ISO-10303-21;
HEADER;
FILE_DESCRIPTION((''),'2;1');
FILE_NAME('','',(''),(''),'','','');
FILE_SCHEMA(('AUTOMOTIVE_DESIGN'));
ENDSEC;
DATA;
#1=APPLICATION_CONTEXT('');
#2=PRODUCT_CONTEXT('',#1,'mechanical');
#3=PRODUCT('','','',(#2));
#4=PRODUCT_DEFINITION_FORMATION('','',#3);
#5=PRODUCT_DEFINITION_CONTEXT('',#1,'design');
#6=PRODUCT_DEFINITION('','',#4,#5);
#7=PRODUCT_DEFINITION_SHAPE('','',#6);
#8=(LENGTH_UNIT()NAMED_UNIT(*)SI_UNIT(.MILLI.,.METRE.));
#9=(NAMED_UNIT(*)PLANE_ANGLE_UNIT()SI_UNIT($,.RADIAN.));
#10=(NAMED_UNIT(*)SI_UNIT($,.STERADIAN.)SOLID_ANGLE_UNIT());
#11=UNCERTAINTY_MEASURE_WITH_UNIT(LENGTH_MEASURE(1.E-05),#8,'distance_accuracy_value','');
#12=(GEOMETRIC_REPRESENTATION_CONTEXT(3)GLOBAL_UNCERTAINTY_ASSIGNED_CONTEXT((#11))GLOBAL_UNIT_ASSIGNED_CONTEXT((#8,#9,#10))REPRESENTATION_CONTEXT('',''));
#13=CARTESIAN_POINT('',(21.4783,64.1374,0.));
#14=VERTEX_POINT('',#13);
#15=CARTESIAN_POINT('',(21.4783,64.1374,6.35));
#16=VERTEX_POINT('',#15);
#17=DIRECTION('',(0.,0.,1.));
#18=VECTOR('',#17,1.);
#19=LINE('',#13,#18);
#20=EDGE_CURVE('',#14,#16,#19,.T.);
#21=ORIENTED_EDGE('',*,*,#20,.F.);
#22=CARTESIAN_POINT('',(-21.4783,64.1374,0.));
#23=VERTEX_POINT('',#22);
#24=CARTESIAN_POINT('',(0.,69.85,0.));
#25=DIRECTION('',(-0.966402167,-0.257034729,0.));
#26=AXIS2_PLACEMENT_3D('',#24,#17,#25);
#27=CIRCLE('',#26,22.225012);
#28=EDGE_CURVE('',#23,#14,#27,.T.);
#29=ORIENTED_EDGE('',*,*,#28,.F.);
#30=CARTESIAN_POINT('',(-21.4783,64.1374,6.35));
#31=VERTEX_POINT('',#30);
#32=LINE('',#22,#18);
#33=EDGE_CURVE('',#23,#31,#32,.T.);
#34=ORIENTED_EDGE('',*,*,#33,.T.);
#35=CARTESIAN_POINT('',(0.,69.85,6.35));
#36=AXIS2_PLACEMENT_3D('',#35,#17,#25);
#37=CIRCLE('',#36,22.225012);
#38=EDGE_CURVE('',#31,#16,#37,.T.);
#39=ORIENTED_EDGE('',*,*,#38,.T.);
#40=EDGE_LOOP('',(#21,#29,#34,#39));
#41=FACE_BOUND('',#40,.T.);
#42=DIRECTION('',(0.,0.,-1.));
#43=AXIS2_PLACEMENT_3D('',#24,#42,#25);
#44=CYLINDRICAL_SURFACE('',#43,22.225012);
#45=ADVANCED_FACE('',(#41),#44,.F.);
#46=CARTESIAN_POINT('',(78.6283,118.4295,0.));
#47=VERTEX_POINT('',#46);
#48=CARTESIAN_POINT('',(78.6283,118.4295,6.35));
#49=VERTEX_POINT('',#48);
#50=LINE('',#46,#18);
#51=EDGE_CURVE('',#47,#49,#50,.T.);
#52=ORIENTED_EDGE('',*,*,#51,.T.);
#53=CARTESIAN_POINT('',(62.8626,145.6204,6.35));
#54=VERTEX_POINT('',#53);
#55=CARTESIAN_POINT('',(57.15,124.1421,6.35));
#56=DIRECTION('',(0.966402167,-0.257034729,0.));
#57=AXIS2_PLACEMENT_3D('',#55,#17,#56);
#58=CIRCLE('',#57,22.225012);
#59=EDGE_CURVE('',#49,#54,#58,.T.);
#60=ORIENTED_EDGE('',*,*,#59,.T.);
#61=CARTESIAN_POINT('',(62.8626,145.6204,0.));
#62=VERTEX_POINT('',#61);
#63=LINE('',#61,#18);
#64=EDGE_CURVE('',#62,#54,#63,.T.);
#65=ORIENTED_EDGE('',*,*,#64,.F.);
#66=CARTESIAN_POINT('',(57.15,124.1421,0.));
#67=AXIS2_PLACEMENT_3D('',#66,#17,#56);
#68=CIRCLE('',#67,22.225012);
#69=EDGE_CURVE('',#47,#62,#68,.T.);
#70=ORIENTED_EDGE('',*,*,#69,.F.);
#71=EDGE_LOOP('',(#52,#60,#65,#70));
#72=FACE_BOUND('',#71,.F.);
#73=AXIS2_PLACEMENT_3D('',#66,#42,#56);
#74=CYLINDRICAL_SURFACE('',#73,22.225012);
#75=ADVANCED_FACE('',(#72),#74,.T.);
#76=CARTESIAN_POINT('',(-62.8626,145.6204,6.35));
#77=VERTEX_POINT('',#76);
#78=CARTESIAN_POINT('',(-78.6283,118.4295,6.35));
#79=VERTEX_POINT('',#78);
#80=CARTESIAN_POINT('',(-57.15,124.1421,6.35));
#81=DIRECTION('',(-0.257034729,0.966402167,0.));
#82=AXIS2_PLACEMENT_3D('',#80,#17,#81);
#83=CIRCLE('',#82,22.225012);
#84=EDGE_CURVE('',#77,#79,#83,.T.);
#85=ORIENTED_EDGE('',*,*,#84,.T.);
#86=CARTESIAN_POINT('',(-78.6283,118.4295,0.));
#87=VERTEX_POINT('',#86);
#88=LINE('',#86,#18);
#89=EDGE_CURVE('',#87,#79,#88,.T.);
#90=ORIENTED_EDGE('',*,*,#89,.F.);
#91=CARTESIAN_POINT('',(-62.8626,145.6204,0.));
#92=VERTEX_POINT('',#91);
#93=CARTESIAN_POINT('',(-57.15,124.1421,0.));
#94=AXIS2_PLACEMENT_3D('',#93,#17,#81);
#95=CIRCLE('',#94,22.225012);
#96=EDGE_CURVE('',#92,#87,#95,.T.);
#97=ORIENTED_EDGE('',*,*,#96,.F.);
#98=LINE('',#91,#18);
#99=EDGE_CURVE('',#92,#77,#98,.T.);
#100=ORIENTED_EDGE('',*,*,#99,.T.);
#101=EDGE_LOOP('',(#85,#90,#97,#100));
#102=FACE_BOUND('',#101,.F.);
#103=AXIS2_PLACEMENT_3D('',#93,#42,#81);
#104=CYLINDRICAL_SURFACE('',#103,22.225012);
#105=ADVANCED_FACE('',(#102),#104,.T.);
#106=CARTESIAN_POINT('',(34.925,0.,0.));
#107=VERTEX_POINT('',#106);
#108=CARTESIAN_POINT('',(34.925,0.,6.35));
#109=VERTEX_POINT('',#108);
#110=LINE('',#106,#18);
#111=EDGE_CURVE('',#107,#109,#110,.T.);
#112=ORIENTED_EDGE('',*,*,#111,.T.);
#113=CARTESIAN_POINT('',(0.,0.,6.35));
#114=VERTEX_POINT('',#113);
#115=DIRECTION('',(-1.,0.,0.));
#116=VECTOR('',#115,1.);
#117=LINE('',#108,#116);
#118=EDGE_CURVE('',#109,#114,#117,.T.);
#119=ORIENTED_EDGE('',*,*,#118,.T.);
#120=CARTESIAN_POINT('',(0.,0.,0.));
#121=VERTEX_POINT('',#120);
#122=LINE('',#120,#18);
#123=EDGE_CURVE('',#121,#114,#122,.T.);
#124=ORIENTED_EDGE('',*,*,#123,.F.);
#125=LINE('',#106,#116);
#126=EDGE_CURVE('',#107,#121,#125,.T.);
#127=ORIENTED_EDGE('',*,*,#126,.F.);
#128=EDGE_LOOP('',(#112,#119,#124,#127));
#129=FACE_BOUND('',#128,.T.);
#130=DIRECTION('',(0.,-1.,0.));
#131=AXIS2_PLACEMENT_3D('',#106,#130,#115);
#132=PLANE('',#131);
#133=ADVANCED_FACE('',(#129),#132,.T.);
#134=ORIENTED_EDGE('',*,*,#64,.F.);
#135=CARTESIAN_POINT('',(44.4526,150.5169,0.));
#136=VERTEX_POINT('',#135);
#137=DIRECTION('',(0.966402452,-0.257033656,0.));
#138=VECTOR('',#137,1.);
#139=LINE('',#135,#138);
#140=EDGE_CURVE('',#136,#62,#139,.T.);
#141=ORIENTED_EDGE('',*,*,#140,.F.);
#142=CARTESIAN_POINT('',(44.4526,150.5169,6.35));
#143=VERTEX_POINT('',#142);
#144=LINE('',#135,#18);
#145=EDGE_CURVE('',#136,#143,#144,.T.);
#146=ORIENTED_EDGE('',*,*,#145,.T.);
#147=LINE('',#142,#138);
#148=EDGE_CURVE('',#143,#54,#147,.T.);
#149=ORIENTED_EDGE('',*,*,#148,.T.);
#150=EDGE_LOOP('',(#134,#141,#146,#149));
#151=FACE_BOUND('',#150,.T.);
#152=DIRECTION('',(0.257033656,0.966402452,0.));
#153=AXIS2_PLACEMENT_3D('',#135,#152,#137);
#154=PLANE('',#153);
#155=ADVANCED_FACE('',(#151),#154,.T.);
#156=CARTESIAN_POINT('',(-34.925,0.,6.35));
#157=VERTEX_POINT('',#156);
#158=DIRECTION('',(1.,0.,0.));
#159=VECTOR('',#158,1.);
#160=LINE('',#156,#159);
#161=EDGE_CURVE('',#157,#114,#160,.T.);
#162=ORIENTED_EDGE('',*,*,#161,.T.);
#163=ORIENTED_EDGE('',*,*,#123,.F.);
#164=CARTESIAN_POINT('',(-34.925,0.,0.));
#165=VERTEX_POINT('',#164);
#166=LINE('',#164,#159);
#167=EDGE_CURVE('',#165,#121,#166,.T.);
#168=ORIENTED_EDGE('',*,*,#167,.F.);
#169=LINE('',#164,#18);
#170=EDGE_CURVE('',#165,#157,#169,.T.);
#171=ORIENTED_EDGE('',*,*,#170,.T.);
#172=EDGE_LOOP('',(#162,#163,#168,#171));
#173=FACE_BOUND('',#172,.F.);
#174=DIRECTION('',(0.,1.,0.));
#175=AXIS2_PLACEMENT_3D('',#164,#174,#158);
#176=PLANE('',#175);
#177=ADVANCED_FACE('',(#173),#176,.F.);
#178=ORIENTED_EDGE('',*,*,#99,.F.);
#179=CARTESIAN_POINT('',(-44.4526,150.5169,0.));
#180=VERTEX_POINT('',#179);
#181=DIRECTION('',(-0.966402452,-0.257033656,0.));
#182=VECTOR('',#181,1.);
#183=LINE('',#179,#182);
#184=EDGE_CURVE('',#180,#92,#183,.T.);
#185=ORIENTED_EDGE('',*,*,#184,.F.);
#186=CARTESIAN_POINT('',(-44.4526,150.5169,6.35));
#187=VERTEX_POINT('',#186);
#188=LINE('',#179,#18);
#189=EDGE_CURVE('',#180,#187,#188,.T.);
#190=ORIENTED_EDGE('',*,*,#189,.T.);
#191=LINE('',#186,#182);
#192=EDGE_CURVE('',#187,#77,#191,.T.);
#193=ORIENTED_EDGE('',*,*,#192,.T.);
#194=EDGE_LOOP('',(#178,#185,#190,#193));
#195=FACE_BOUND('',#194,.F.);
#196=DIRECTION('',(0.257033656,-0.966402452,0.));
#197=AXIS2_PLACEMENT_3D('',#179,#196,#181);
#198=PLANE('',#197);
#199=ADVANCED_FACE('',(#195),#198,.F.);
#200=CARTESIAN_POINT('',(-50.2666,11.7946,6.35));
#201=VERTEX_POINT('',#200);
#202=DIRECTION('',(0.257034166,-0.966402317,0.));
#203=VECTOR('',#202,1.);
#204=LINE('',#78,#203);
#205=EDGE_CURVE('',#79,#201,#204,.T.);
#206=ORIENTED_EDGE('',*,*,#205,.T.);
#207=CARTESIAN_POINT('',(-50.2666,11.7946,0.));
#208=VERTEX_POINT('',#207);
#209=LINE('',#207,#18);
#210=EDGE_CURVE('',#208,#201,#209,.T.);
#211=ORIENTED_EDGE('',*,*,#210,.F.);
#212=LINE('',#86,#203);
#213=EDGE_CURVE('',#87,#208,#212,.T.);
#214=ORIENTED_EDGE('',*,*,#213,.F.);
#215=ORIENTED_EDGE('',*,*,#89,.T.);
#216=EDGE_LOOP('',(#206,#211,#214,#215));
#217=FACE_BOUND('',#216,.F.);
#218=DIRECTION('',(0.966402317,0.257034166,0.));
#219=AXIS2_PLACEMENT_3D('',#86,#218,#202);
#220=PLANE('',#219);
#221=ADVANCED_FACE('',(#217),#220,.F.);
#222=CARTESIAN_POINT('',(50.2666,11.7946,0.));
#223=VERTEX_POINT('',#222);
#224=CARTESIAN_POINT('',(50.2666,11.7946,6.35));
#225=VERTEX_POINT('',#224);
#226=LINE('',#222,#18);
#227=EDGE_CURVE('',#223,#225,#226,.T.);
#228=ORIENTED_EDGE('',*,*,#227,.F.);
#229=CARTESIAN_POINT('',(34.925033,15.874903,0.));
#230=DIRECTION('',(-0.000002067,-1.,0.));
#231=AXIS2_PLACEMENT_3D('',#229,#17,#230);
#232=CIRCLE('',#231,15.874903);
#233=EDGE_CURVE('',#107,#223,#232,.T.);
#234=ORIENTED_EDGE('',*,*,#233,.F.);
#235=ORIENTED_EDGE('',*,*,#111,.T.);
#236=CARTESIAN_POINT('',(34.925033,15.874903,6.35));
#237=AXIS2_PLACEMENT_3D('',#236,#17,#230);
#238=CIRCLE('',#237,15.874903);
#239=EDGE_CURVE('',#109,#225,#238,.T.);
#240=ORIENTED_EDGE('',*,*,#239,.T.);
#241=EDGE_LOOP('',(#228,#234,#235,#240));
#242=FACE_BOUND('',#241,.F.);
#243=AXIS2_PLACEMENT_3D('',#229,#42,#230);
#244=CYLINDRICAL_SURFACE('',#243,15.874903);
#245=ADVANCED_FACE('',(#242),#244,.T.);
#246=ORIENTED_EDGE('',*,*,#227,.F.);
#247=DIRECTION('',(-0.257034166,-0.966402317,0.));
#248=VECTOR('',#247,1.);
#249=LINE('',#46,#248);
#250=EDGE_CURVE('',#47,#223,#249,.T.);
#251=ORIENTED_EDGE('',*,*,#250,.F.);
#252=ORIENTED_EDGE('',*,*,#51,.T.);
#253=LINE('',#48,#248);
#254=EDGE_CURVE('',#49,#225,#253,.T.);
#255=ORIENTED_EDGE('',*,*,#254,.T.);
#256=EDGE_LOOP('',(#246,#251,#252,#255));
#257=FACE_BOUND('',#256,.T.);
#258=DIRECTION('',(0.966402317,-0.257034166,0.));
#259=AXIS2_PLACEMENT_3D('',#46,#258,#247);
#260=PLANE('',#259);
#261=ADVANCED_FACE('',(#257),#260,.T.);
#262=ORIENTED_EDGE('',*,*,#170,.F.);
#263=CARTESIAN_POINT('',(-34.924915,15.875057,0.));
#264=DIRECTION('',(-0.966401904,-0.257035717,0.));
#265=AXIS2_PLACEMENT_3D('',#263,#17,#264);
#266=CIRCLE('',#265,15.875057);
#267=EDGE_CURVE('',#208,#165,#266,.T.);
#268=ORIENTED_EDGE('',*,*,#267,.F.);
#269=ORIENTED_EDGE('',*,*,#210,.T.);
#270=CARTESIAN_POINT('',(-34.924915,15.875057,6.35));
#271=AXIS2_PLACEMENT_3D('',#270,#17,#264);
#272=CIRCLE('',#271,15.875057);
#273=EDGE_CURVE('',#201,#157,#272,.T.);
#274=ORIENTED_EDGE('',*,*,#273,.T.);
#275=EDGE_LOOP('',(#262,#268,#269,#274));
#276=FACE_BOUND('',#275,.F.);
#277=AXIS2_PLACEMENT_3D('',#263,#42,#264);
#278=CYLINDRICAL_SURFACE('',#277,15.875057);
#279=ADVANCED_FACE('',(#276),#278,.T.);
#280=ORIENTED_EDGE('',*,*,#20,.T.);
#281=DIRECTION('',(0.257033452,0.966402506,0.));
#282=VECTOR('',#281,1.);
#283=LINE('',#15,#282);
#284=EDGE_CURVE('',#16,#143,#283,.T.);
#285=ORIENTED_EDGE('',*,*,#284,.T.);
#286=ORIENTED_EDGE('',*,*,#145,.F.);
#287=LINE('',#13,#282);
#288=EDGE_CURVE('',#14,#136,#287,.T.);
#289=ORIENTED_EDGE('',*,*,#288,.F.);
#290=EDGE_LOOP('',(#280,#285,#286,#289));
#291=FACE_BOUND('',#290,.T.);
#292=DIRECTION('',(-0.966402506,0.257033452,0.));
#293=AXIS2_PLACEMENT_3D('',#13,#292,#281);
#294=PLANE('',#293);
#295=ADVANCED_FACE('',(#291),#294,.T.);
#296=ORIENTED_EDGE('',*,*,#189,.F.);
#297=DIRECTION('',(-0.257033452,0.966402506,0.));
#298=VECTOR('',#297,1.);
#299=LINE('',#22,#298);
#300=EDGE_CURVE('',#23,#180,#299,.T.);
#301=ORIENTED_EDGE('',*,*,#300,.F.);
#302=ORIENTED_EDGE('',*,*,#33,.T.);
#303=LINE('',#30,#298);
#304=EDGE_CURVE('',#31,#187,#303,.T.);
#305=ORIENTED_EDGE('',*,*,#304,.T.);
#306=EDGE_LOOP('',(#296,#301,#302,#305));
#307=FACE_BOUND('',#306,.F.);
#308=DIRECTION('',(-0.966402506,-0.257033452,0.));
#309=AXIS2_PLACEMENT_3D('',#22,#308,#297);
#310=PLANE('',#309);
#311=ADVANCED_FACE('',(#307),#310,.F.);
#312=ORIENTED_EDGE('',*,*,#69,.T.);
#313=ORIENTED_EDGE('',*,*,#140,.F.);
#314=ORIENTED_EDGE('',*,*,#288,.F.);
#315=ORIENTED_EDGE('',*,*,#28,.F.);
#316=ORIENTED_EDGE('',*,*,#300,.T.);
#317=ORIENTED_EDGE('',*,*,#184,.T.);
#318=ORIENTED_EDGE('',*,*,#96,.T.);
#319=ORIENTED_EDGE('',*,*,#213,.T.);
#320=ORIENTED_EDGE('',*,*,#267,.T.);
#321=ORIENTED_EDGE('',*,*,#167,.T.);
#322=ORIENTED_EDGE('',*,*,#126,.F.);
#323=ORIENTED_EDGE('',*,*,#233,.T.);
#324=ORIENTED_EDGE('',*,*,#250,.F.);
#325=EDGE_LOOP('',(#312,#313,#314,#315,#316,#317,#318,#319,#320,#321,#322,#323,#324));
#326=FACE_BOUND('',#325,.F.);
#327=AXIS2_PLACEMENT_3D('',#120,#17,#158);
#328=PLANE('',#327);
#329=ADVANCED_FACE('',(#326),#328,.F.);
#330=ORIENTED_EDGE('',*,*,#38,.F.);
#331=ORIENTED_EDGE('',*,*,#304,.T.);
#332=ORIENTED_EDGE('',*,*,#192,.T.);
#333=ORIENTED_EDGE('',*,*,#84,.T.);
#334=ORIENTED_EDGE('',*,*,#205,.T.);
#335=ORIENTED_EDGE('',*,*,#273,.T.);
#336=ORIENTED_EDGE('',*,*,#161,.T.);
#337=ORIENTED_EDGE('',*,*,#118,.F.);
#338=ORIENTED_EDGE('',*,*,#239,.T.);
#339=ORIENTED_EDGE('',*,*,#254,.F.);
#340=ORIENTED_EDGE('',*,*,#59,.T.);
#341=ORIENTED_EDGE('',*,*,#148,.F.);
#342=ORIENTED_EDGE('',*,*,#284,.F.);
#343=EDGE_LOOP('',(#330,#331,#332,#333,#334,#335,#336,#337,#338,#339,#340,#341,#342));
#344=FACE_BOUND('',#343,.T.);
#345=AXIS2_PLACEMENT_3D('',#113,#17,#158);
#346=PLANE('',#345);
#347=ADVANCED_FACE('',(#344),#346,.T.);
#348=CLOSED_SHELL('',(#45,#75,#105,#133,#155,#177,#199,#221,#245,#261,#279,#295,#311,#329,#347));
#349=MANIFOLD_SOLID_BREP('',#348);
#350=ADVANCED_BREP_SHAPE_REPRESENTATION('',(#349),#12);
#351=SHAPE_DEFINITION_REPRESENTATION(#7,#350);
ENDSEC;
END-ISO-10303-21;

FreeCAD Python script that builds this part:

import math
import FreeCAD as App
import Part
import Sketcher
from FreeCAD import Vector
Q = App.Units.Quantity

doc = App.newDocument("Part")
body = doc.addObject("PartDesign::Body", "Body")

# Sketch on XY plane
sketch1 = doc.addObject("Sketcher::SketchObject", "Sketch")
body.addObject(sketch1)
sketch1.AttachmentSupport = (doc.XY_Plane, [""])
sketch1.MapMode = "FlatFace"
sketch1.addGeometry([
    Part.ArcOfCircle(Part.Circle(Vector(0, 70, 0), Vector(0, 0, 1), 22), math.radians(-165), math.radians(-15)),  # 0
    Part.LineSegment(Vector(-21, 64, 0), Vector(-44, 151, 0)),  # 1
    Part.LineSegment(Vector(-44, 151, 0), Vector(-63, 146, 0)),  # 2
    Part.ArcOfCircle(Part.Circle(Vector(-57, 124, 0), Vector(0, 0, 1), 22), math.radians(105), math.radians(195)),  # 3
    Part.LineSegment(Vector(-79, 118, 0), Vector(-50, 12, 0)),  # 4
    Part.ArcOfCircle(Part.Circle(Vector(-35, 16, 0), Vector(0, 0, 1), 16), math.radians(-165), math.radians(-90)),  # 5
    Part.LineSegment(Vector(-35, 0, 0), Vector(35, 0, 0)),  # 6
    Part.ArcOfCircle(Part.Circle(Vector(35, 16, 0), Vector(0, 0, 1), 16), math.radians(-90), math.radians(-15)),  # 7
    Part.LineSegment(Vector(50, 12, 0), Vector(79, 118, 0)),  # 8
    Part.ArcOfCircle(Part.Circle(Vector(57, 124, 0), Vector(0, 0, 1), 22), math.radians(-15), math.radians(75)),  # 9
    Part.LineSegment(Vector(63, 146, 0), Vector(44, 151, 0)),  # 10
    Part.LineSegment(Vector(44, 151, 0), Vector(21, 64, 0)),  # 11
], False)
sketch1.addConstraint([
    Sketcher.Constraint("Tangent", 0, 1, 1, 1),
    Sketcher.Constraint("Coincident", 1, 2, 2, 1),
    Sketcher.Constraint("Tangent", 2, 2, 3, 1),
    Sketcher.Constraint("Tangent", 3, 2, 4, 1),
    Sketcher.Constraint("Tangent", 4, 2, 5, 1),
    Sketcher.Constraint("Tangent", 5, 2, 6, 1),
    Sketcher.Constraint("Tangent", 6, 2, 7, 1),
    Sketcher.Constraint("Tangent", 7, 2, 8, 1),
    Sketcher.Constraint("Tangent", 8, 2, 9, 1),
    Sketcher.Constraint("Tangent", 9, 2, 10, 1),
    Sketcher.Constraint("Coincident", 10, 2, 11, 1),
    Sketcher.Constraint("Tangent", 11, 2, 0, 2),
    Sketcher.Constraint("Horizontal", 6),
    Sketcher.Constraint("Equal", 0, 3),
    Sketcher.Constraint("Equal", 5, 7),
    Sketcher.Constraint("Equal", 3, 9),
    Sketcher.Constraint("Symmetric", 5, 2, 6, 2, -1, 1),
    Sketcher.Constraint("Symmetric", 3, 3, 9, 3, -2),
    Sketcher.Constraint("Symmetric", 1, 2, 10, 2, -2),
    Sketcher.Constraint("PointOnObject", 0, 3, -2),
    Sketcher.Constraint("Perpendicular", 1, 2),
    Sketcher.Constraint("Perpendicular", 2, 4),
    Sketcher.Constraint("Radius", 0, Q("0.875 in")),
    Sketcher.Constraint("Radius", 5, Q("0.625 in")),
    Sketcher.Constraint("DistanceX", 6, 1, 6, 2, Q("2.75 in")),
    Sketcher.Constraint("DistanceY", -1, 1, 0, 3, Q("2.75 in")),
    Sketcher.Constraint("DistanceX", 3, 3, -1, 1, Q("2.25 in")),
    Sketcher.Constraint("Distance", 2, Q("0.75 in")),
])
pad1 = doc.addObject("PartDesign::Pad", "Pad")
body.addObject(pad1)
pad1.Profile = sketch1
pad1.Length = Q("0.25 in")

doc.recompute()
